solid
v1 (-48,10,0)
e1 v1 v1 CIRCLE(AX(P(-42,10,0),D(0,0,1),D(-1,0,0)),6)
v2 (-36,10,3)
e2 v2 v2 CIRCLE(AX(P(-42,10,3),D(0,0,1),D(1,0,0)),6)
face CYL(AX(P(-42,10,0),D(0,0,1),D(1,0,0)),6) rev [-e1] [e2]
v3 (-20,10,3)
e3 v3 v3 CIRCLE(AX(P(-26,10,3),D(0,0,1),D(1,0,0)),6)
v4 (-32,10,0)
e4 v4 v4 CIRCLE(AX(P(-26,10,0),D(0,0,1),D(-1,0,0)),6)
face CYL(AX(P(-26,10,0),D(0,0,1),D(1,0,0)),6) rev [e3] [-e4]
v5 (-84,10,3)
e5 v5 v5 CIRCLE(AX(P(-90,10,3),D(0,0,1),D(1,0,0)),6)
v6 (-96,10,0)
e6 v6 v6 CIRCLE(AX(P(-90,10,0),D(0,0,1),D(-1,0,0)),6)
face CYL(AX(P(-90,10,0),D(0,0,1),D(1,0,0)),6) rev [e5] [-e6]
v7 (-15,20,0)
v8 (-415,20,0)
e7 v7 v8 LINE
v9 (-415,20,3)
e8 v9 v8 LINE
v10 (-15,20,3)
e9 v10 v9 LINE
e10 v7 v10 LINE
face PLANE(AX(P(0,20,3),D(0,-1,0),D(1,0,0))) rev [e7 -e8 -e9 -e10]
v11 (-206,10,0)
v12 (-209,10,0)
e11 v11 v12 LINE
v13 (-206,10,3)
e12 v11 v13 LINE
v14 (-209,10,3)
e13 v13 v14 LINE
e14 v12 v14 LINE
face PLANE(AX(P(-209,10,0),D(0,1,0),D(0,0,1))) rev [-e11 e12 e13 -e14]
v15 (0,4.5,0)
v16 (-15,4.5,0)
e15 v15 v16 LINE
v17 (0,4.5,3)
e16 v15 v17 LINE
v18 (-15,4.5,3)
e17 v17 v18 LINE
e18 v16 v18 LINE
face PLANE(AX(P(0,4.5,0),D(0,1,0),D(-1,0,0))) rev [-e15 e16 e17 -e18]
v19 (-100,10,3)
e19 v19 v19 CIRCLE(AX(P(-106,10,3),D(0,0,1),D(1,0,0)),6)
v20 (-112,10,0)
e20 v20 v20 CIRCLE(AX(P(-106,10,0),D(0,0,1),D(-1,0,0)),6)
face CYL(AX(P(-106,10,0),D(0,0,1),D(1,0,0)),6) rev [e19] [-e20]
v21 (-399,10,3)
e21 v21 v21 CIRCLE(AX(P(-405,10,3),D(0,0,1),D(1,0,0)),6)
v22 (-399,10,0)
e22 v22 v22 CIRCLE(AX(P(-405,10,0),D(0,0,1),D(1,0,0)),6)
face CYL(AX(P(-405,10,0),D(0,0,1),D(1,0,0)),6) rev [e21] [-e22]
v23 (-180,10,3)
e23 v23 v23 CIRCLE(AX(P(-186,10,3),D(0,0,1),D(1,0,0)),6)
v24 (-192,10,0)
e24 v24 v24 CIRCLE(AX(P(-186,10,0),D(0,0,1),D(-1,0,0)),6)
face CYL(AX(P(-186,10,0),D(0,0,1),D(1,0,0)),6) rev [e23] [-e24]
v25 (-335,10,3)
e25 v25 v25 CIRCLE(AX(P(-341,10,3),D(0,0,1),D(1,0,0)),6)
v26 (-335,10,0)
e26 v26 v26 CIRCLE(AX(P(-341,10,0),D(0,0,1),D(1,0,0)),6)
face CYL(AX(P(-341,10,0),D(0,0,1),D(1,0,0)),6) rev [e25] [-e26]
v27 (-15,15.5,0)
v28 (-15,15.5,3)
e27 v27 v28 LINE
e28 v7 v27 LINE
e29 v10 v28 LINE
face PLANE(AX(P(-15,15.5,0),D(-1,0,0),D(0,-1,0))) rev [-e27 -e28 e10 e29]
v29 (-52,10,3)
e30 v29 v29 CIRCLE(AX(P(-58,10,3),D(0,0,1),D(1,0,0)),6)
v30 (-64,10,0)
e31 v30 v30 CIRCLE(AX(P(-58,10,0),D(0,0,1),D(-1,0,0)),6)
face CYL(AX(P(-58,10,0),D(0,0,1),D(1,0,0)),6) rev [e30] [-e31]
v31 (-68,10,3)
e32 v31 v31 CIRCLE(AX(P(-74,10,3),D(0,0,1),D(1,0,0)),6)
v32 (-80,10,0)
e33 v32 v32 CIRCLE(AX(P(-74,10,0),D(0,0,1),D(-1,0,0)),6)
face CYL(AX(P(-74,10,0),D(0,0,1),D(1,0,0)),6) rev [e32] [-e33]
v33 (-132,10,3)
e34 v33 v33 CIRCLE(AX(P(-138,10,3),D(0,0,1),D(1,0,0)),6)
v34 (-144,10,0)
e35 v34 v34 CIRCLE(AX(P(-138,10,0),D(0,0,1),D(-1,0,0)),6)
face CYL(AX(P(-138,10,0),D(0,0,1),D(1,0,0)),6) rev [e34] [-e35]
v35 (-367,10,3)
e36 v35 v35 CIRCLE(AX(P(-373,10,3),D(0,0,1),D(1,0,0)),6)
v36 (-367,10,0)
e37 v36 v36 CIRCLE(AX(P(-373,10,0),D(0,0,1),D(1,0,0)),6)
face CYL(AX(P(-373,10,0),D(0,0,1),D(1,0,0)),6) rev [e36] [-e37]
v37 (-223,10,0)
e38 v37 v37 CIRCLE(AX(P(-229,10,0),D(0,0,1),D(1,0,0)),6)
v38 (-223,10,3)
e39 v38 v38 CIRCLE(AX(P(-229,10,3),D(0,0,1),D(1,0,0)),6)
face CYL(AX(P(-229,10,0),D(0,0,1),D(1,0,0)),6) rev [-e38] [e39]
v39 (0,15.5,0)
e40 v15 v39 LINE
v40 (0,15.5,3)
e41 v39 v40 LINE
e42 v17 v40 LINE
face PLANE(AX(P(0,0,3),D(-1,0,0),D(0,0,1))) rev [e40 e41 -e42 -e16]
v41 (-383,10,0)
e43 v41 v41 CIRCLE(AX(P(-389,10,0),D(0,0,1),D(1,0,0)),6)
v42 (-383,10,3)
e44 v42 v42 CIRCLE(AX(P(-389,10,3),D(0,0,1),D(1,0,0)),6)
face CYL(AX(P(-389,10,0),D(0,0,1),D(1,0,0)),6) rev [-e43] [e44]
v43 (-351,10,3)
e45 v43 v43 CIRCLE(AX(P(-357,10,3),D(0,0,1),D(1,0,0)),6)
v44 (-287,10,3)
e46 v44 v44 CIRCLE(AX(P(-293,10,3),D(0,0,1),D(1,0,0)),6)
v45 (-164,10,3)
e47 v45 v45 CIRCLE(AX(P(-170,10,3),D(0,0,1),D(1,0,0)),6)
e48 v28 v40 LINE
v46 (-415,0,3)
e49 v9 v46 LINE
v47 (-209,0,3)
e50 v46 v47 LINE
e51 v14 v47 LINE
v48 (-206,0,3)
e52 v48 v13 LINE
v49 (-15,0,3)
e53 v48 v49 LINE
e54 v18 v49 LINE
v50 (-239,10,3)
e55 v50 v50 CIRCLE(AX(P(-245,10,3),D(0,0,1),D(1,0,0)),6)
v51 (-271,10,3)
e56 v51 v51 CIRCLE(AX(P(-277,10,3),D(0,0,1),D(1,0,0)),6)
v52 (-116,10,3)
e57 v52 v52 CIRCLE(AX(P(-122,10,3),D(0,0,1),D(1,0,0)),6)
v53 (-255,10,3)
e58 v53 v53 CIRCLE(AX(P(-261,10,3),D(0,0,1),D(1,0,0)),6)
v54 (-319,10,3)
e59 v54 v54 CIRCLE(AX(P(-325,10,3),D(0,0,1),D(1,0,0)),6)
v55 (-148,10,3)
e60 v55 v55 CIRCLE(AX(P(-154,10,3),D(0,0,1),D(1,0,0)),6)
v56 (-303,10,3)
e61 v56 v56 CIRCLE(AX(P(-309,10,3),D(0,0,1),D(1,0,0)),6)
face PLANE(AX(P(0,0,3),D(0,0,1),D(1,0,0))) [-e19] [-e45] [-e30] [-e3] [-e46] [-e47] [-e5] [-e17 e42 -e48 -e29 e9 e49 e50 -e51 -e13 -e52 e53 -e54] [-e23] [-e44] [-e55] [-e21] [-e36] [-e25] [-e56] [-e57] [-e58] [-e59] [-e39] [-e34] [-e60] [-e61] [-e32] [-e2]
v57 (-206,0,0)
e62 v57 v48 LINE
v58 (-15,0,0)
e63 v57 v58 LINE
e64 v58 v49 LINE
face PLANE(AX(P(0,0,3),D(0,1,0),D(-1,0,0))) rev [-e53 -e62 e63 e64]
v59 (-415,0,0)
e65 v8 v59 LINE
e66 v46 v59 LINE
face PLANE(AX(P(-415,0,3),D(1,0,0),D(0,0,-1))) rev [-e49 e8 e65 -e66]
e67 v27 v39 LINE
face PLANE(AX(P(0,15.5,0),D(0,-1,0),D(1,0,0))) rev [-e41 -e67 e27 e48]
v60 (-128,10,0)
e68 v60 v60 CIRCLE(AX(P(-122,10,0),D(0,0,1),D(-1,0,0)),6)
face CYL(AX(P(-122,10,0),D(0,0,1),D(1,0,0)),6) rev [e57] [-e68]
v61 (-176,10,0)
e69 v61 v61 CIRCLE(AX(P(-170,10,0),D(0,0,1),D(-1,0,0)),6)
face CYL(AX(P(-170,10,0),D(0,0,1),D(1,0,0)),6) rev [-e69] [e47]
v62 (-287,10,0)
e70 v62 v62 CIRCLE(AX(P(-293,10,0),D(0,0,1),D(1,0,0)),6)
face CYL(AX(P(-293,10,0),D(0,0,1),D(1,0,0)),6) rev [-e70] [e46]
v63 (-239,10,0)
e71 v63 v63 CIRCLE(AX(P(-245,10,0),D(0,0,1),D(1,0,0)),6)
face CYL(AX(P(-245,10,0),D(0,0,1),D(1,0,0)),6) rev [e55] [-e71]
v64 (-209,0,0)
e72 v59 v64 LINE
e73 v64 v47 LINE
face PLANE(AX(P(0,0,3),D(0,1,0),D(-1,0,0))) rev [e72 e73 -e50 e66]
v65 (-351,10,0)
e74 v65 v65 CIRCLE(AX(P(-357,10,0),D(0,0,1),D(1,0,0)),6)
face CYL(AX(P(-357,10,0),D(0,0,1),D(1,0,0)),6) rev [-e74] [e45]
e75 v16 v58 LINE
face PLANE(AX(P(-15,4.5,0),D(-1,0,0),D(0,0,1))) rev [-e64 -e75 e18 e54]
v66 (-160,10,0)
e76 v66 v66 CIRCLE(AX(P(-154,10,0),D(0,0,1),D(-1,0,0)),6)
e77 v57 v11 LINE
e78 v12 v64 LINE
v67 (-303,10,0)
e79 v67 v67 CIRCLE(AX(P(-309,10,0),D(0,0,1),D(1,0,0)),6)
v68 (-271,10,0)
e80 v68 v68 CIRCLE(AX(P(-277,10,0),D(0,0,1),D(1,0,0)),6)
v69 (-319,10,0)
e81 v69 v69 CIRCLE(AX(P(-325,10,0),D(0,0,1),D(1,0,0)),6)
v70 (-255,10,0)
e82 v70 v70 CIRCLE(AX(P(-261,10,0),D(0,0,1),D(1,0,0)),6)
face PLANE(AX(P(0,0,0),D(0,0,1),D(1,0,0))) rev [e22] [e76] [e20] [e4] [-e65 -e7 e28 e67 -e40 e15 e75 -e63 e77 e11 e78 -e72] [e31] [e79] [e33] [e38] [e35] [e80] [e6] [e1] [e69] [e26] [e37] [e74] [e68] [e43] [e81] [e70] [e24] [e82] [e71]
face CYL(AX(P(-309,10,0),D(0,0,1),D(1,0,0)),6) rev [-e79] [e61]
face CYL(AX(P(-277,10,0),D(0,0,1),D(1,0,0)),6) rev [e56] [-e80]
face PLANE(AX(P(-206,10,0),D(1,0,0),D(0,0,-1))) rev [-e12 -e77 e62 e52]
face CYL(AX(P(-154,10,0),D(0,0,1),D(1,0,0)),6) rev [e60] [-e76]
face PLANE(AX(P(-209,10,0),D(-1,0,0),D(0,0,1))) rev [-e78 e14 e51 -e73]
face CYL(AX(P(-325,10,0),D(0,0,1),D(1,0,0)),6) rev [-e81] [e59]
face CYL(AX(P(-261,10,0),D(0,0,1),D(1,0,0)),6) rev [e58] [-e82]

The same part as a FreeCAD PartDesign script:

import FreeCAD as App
import Part
import Sketcher

doc = App.newDocument("Part")
params = doc.addObject("Spreadsheet::Sheet", "Params")
for row, (alias, value) in enumerate([
    ("sketch1_width", "415 mm"),
    ("sketch1_height", "20 mm"),
    ("pad1_length", "3 mm"),
    ("sketch2_diameter", "12 mm"),
    ("sketch2_width", "15 mm"),
    ("sketch2_width2", "3 mm"),
    ("sketch2_height", "10 mm"),
    ("sketch2_height2", "4.5 mm"),
], start=1):
    params.set(f"A{row}", alias)
    params.set(f"B{row}", "=" + value)
    params.setAlias(f"B{row}", alias)

body = doc.addObject("PartDesign::Body", "Body")

# Sketch on XY plane
sketch1 = doc.addObject("Sketcher::SketchObject", "Sketch")
body.addObject(sketch1)
sketch1.AttachmentSupport = (doc.XY_Plane, [""])
sketch1.MapMode = "FlatFace"
sketch1.addGeometry([
    Part.LineSegment(App.Vector(-415, 20, 0), App.Vector(-415, 0, 0)),
    Part.LineSegment(App.Vector(-415, 0, 0), App.Vector(0, 0, 0)),
    Part.LineSegment(App.Vector(0, 0, 0), App.Vector(0, 20, 0)),
    Part.LineSegment(App.Vector(0, 20, 0), App.Vector(-415, 20, 0)),
], False)
sketch1.addConstraint([
    Sketcher.Constraint("Coincident", 0, 2, 1, 1),
    Sketcher.Constraint("Coincident", 1, 2, 2, 1),
    Sketcher.Constraint("Coincident", 2, 2, 3, 1),
    Sketcher.Constraint("Coincident", 3, 2, 0, 1),
    Sketcher.Constraint("Vertical", 0),
    Sketcher.Constraint("Horizontal", 1),
    Sketcher.Constraint("Vertical", 2),
    Sketcher.Constraint("Horizontal", 3),
    Sketcher.Constraint("Coincident", 1, 2, -1, 1),
    Sketcher.Constraint("DistanceX", 1, 1, 1, 2, 415.0),
    Sketcher.Constraint("DistanceY", 0, 2, 0, 1, 20.0),
])
sketch1.setExpression("Constraints[9]", "Params.sketch1_width")
sketch1.setExpression("Constraints[10]", "Params.sketch1_height")
pad1 = doc.addObject("PartDesign::Pad", "Pad")
body.addObject(pad1)
pad1.Profile = sketch1
pad1.setExpression("Length", "Params.pad1_length")

# Sketch on XY plane
sketch2 = doc.addObject("Sketcher::SketchObject", "Sketch001")
body.addObject(sketch2)
sketch2.AttachmentSupport = (doc.XY_Plane, [""])
sketch2.MapMode = "FlatFace"
sketch2.AttachmentOffset = App.Placement(App.Vector(0, 0, 3), App.Rotation())
sketch2.addGeometry([
    Part.Circle(App.Vector(-405, 10, 0), App.Vector(0, 0, 1), 6),  # 0
    Part.Circle(App.Vector(-389, 10, 0), App.Vector(0, 0, 1), 6),  # 1
    Part.Circle(App.Vector(-373, 10, 0), App.Vector(0, 0, 1), 6),  # 2
    Part.Circle(App.Vector(-357, 10, 0), App.Vector(0, 0, 1), 6),  # 3
    Part.Circle(App.Vector(-341, 10, 0), App.Vector(0, 0, 1), 6),  # 4
    Part.Circle(App.Vector(-325, 10, 0), App.Vector(0, 0, 1), 6),  # 5
    Part.Circle(App.Vector(-309, 10, 0), App.Vector(0, 0, 1), 6),  # 6
    Part.Circle(App.Vector(-293, 10, 0), App.Vector(0, 0, 1), 6),  # 7
    Part.Circle(App.Vector(-277, 10, 0), App.Vector(0, 0, 1), 6),  # 8
    Part.Circle(App.Vector(-261, 10, 0), App.Vector(0, 0, 1), 6),  # 9
    Part.Circle(App.Vector(-245, 10, 0), App.Vector(0, 0, 1), 6),  # 10
    Part.Circle(App.Vector(-229, 10, 0), App.Vector(0, 0, 1), 6),  # 11
    Part.Circle(App.Vector(-26, 10, 0), App.Vector(0, 0, 1), 6),  # 12
    Part.Circle(App.Vector(-42, 10, 0), App.Vector(0, 0, 1), 6),  # 13
    Part.Circle(App.Vector(-58, 10, 0), App.Vector(0, 0, 1), 6),  # 14
    Part.Circle(App.Vector(-74, 10, 0), App.Vector(0, 0, 1), 6),  # 15
    Part.Circle(App.Vector(-90, 10, 0), App.Vector(0, 0, 1), 6),  # 16
    Part.Circle(App.Vector(-106, 10, 0), App.Vector(0, 0, 1), 6),  # 17
    Part.Circle(App.Vector(-122, 10, 0), App.Vector(0, 0, 1), 6),  # 18
    Part.Circle(App.Vector(-138, 10, 0), App.Vector(0, 0, 1), 6),  # 19
    Part.Circle(App.Vector(-154, 10, 0), App.Vector(0, 0, 1), 6),  # 20
    Part.Circle(App.Vector(-170, 10, 0), App.Vector(0, 0, 1), 6),  # 21
    Part.Circle(App.Vector(-186, 10, 0), App.Vector(0, 0, 1), 6),  # 22
    Part.LineSegment(App.Vector(-15, 20, 0), App.Vector(-15, 15.5, 0)),  # 23
    Part.LineSegment(App.Vector(-15, 15.5, 0), App.Vector(0, 15.5, 0)),  # 24
    Part.LineSegment(App.Vector(0, 15.5, 0), App.Vector(0, 20, 0)),  # 25
    Part.LineSegment(App.Vector(0, 20, 0), App.Vector(-15, 20, 0)),  # 26
    Part.LineSegment(App.Vector(-15, 4.5, 0), App.Vector(-15, 0, 0)),  # 27
    Part.LineSegment(App.Vector(-15, 0, 0), App.Vector(0, 0, 0)),  # 28
    Part.LineSegment(App.Vector(0, 0, 0), App.Vector(0, 4.5, 0)),  # 29
    Part.LineSegment(App.Vector(0, 4.5, 0), App.Vector(-15, 4.5, 0)),  # 30
    Part.LineSegment(App.Vector(-209, 10, 0), App.Vector(-209, 0, 0)),  # 31
    Part.LineSegment(App.Vector(-209, 0, 0), App.Vector(-206, 0, 0)),  # 32
    Part.LineSegment(App.Vector(-206, 0, 0), App.Vector(-206, 10, 0)),  # 33
    Part.LineSegment(App.Vector(-206, 10, 0), App.Vector(-209, 10, 0)),  # 34
], False)
sketch2.addConstraint([
    Sketcher.Constraint("Coincident", 23, 2, 24, 1),
    Sketcher.Constraint("Coincident", 24, 2, 25, 1),
    Sketcher.Constraint("Coincident", 25, 2, 26, 1),
    Sketcher.Constraint("Coincident", 26, 2, 23, 1),
    Sketcher.Constraint("Coincident", 27, 2, 28, 1),
    Sketcher.Constraint("Coincident", 28, 2, 29, 1),
    Sketcher.Constraint("Coincident", 29, 2, 30, 1),
    Sketcher.Constraint("Coincident", 30, 2, 27, 1),
    Sketcher.Constraint("Coincident", 31, 2, 32, 1),
    Sketcher.Constraint("Coincident", 32, 2, 33, 1),
    Sketcher.Constraint("Coincident", 33, 2, 34, 1),
    Sketcher.Constraint("Coincident", 34, 2, 31, 1),
    Sketcher.Constraint("Vertical", 23),
    Sketcher.Constraint("Horizontal", 24),
    Sketcher.Constraint("Vertical", 25),
    Sketcher.Constraint("Horizontal", 26),
    Sketcher.Constraint("Vertical", 27),
    Sketcher.Constraint("Horizontal", 28),
    Sketcher.Constraint("Vertical", 29),
    Sketcher.Constraint("Horizontal", 30),
    Sketcher.Constraint("Vertical", 31),
    Sketcher.Constraint("Horizontal", 32),
    Sketcher.Constraint("Vertical", 33),
    Sketcher.Constraint("Horizontal", 34),
    Sketcher.Constraint("Coincident", 28, 2, -1, 1),
    Sketcher.Constraint("Equal", 0, 1),
    Sketcher.Constraint("Equal", 1, 2),
    Sketcher.Constraint("Equal", 2, 3),
    Sketcher.Constraint("Equal", 3, 4),
    Sketcher.Constraint("Equal", 4, 5),
    Sketcher.Constraint("Equal", 5, 6),
    Sketcher.Constraint("Equal", 6, 7),
    Sketcher.Constraint("Equal", 7, 8),
    Sketcher.Constraint("Equal", 8, 9),
    Sketcher.Constraint("Equal", 9, 10),
    Sketcher.Constraint("Equal", 10, 11),
    Sketcher.Constraint("Equal", 11, 12),
    Sketcher.Constraint("Equal", 12, 13),
    Sketcher.Constraint("Equal", 13, 14),
    Sketcher.Constraint("Equal", 14, 15),
    Sketcher.Constraint("Equal", 15, 16),
    Sketcher.Constraint("Equal", 16, 17),
    Sketcher.Constraint("Equal", 17, 18),
    Sketcher.Constraint("Equal", 18, 19),
    Sketcher.Constraint("Equal", 19, 20),
    Sketcher.Constraint("Equal", 20, 21),
    Sketcher.Constraint("Equal", 21, 22),
    Sketcher.Constraint("PointOnObject", 24, 2, -2),
    Sketcher.Constraint("PointOnObject", 31, 2, -1),
    Sketcher.Constraint("Horizontal", 0, 3, 1, 3),
    Sketcher.Constraint("Horizontal", 1, 3, 2, 3),
    Sketcher.Constraint("Horizontal", 2, 3, 3, 3),
    Sketcher.Constraint("Horizontal", 3, 3, 4, 3),
    Sketcher.Constraint("Horizontal", 4, 3, 5, 3),
    Sketcher.Constraint("Horizontal", 5, 3, 6, 3),
    Sketcher.Constraint("Horizontal", 6, 3, 7, 3),
    Sketcher.Constraint("Horizontal", 7, 3, 8, 3),
    Sketcher.Constraint("Horizontal", 8, 3, 9, 3),
    Sketcher.Constraint("Horizontal", 9, 3, 10, 3),
    Sketcher.Constraint("Horizontal", 10, 3, 11, 3),
    Sketcher.Constraint("Horizontal", 11, 3, 12, 3),
    Sketcher.Constraint("Horizontal", 12, 3, 13, 3),
    Sketcher.Constraint("Horizontal", 13, 3, 14, 3),
    Sketcher.Constraint("Horizontal", 14, 3, 15, 3),
    Sketcher.Constraint("Horizontal", 15, 3, 16, 3),
    Sketcher.Constraint("Horizontal", 16, 3, 17, 3),
    Sketcher.Constraint("Horizontal", 17, 3, 18, 3),
    Sketcher.Constraint("Horizontal", 18, 3, 19, 3),
    Sketcher.Constraint("Horizontal", 19, 3, 20, 3),
    Sketcher.Constraint("Horizontal", 20, 3, 21, 3),
    Sketcher.Constraint("Horizontal", 21, 3, 22, 3),
    Sketcher.Constraint("Horizontal", 22, 3, 33, 2),
    Sketcher.Constraint("Vertical", 26, 2, 27, 2),
    Sketcher.Constraint("Equal", 25, 27),
    Sketcher.Constraint("Diameter", 0, 12.0),
    Sketcher.Constraint("DistanceX", 24, 1, 24, 2, 15.0),
    Sketcher.Constraint("DistanceX", 32, 1, 32, 2, 3.0),
    Sketcher.Constraint("DistanceY", 31, 2, 31, 1, 10.0),
    Sketcher.Constraint("DistanceY", 23, 2, 23, 1, 4.5),
    Sketcher.Constraint("DistanceX", 0, 3, -1, 1, 405.0),
    Sketcher.Constraint("DistanceX", 1, 3, -1, 1, 389.0),
    Sketcher.Constraint("DistanceX", 2, 3, -1, 1, 373.0),
    Sketcher.Constraint("DistanceX", 3, 3, -1, 1, 357.0),
    Sketcher.Constraint("DistanceX", 4, 3, -1, 1, 341.0),
    Sketcher.Constraint("DistanceX", 5, 3, -1, 1, 325.0),
    Sketcher.Constraint("DistanceX", 6, 3, -1, 1, 309.0),
    Sketcher.Constraint("DistanceX", 7, 3, -1, 1, 293.0),
    Sketcher.Constraint("DistanceX", 8, 3, -1, 1, 277.0),
    Sketcher.Constraint("DistanceX", 9, 3, -1, 1, 261.0),
    Sketcher.Constraint("DistanceX", 10, 3, -1, 1, 245.0),
    Sketcher.Constraint("DistanceX", 11, 3, -1, 1, 229.0),
    Sketcher.Constraint("DistanceX", 12, 3, -1, 1, 26.0),
    Sketcher.Constraint("DistanceX", 13, 3, -1, 1, 42.0),
    Sketcher.Constraint("DistanceX", 14, 3, -1, 1, 58.0),
    Sketcher.Constraint("DistanceX", 15, 3, -1, 1, 74.0),
    Sketcher.Constraint("DistanceX", 16, 3, -1, 1, 90.0),
    Sketcher.Constraint("DistanceX", 17, 3, -1, 1, 106.0),
    Sketcher.Constraint("DistanceX", 18, 3, -1, 1, 122.0),
    Sketcher.Constraint("DistanceX", 19, 3, -1, 1, 138.0),
    Sketcher.Constraint("DistanceX", 20, 3, -1, 1, 154.0),
    Sketcher.Constraint("DistanceX", 21, 3, -1, 1, 170.0),
    Sketcher.Constraint("DistanceX", 22, 3, -1, 1, 186.0),
    Sketcher.Constraint("DistanceY", -1, 1, 25, 2, 20.0),
    Sketcher.Constraint("DistanceX", 31, 2, -1, 1, 209.0),
])
sketch2.setExpression("Constraints[74]", "Params.sketch2_diameter")
sketch2.setExpression("Constraints[75]", "Params.sketch2_width")
sketch2.setExpression("Constraints[76]", "Params.sketch2_width2")
sketch2.setExpression("Constraints[77]", "Params.sketch2_height")
sketch2.setExpression("Constraints[78]", "Params.sketch2_height2")
pocket1 = doc.addObject("PartDesign::Pocket", "Pocket")
body.addObject(pocket1)
pocket1.Profile = sketch2
pocket1.Type = "ThroughAll"
pocket1.Midplane = True

doc.recompute()
